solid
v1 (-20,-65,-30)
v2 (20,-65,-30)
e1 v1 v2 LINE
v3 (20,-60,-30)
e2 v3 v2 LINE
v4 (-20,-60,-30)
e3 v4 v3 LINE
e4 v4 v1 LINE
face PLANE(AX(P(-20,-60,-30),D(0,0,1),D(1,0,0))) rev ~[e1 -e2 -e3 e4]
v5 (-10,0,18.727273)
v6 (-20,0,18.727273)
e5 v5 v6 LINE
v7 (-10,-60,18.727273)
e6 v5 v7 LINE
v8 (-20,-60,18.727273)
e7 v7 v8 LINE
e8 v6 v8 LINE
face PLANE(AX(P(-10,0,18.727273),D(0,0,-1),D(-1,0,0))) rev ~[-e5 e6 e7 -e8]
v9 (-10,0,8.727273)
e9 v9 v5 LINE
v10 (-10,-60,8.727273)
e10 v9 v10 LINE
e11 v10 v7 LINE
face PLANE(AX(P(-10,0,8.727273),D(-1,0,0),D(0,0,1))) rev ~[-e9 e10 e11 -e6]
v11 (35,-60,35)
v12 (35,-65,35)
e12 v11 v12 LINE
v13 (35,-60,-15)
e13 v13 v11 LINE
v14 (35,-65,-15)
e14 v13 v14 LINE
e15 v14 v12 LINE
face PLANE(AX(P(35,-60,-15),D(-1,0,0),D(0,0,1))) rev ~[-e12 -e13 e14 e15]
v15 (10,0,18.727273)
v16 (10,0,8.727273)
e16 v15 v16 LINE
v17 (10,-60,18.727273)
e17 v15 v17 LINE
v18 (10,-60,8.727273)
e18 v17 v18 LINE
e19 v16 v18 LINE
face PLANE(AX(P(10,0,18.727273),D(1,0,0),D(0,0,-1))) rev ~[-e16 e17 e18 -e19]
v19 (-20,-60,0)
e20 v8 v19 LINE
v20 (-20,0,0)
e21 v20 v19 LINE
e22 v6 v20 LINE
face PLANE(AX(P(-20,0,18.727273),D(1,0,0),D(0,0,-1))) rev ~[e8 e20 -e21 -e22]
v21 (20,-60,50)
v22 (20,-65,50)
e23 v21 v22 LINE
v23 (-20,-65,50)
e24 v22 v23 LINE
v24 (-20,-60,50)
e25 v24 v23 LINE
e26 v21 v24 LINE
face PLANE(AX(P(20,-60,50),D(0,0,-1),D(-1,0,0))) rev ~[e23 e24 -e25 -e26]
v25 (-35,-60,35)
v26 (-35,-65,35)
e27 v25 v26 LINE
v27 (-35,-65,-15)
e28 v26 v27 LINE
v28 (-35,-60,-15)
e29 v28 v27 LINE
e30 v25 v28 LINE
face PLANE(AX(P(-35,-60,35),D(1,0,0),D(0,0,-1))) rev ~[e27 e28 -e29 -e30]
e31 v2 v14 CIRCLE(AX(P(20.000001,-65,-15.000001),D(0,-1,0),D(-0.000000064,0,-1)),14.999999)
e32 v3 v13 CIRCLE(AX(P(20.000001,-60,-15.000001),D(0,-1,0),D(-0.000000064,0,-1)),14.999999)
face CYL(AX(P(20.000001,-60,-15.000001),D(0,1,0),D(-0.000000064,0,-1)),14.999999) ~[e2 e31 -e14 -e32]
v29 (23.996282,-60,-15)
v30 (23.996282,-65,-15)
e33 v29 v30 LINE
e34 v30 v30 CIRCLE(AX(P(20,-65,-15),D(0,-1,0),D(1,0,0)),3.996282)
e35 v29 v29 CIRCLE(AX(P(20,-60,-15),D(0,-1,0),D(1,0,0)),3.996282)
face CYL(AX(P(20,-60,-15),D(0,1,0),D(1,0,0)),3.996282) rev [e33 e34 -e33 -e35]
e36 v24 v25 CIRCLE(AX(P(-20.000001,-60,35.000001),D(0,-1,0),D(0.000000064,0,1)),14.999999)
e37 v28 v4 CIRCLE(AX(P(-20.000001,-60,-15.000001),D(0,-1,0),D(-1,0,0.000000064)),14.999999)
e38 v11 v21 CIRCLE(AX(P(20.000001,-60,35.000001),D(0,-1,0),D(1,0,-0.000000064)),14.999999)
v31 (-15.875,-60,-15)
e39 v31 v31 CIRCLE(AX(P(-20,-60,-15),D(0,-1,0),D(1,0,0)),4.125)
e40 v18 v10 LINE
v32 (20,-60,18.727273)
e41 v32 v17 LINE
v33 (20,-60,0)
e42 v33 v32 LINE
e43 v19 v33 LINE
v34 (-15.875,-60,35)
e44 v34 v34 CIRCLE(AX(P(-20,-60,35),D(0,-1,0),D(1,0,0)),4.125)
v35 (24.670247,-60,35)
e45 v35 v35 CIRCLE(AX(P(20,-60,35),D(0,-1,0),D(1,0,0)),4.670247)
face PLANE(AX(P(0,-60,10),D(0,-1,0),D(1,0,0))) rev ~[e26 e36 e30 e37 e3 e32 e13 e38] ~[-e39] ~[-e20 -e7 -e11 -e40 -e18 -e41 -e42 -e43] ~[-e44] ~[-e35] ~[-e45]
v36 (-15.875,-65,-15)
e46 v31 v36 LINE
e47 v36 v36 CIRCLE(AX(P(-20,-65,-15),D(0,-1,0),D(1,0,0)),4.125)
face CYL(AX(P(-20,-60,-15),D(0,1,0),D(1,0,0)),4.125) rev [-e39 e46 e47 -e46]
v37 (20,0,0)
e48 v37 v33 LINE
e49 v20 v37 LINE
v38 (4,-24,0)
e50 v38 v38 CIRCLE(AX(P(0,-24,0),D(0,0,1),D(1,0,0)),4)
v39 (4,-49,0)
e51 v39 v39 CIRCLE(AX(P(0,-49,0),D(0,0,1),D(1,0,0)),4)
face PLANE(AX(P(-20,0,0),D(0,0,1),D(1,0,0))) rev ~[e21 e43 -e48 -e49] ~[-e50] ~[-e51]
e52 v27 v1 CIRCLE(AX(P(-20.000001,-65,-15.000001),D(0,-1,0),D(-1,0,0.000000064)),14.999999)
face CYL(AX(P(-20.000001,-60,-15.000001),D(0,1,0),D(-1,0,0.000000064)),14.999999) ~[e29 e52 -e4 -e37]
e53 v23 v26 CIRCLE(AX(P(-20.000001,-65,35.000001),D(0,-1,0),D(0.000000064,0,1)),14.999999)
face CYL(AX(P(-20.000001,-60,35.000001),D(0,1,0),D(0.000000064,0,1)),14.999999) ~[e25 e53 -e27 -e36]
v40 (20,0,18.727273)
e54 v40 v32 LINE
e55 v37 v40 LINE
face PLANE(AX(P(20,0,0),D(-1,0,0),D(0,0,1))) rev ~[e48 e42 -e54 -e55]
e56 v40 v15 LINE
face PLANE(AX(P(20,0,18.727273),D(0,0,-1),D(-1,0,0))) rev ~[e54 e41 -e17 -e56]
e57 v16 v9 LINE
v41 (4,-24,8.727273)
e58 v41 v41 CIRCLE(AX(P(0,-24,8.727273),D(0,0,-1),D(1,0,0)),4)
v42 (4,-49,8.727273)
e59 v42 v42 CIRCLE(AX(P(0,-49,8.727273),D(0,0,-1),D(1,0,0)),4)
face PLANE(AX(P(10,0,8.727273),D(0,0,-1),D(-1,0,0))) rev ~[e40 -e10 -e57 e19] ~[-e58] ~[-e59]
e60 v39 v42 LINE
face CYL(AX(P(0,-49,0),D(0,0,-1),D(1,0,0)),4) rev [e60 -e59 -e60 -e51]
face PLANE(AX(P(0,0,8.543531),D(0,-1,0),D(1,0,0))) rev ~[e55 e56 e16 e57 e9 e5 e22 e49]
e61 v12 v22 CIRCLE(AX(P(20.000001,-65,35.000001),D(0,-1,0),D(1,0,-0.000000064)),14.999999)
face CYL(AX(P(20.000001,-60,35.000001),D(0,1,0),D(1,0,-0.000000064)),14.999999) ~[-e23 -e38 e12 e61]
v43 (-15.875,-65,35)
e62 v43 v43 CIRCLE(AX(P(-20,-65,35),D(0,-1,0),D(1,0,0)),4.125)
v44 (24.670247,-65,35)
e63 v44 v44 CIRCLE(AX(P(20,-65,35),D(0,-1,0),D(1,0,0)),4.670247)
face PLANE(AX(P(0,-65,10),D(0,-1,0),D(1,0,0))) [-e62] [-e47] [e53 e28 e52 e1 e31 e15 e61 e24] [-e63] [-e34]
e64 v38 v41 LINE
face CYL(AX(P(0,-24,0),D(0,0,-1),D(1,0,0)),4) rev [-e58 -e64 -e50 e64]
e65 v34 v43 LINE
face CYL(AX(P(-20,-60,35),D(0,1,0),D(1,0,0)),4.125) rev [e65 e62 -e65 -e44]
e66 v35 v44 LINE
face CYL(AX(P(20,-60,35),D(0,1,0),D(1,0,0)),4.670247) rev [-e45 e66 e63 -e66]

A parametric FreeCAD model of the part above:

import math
import FreeCAD as App
import Part
import Sketcher
from FreeCAD import Vector

doc = App.newDocument("Part")
body = doc.addObject("PartDesign::Body", "Body")

sketch1 = doc.addObject("Sketcher::SketchObject", "Sketch")
body.addObject(sketch1)
sketch1.AttachmentSupport = (doc.XZ_Plane, [""])
sketch1.MapMode = "FlatFace"
sketch1.addGeometry(Part.LineSegment(Vector(-20, 19, 0), Vector(-20, 0, 0)), False)
sketch1.addGeometry(Part.LineSegment(Vector(-20, 0, 0), Vector(20, 0, 0)), False)
sketch1.addGeometry(Part.LineSegment(Vector(20, 0, 0), Vector(20, 19, 0)), False)
sketch1.addGeometry(Part.LineSegment(Vector(20, 19, 0), Vector(10, 19, 0)), False)
sketch1.addGeometry(Part.LineSegment(Vector(10, 19, 0), Vector(10, 9, 0)), False)
sketch1.addGeometry(Part.LineSegment(Vector(10, 9, 0), Vector(-10, 9, 0)), False)
sketch1.addGeometry(Part.LineSegment(Vector(-10, 9, 0), Vector(-10, 19, 0)), False)
sketch1.addGeometry(Part.LineSegment(Vector(-10, 19, 0), Vector(-20, 19, 0)), False)
sketch1.addConstraint(Sketcher.Constraint("Coincident", 0, 2, 1, 1))
sketch1.addConstraint(Sketcher.Constraint("Coincident", 1, 2, 2, 1))
sketch1.addConstraint(Sketcher.Constraint("Coincident", 2, 2, 3, 1))
sketch1.addConstraint(Sketcher.Constraint("Coincident", 3, 2, 4, 1))
sketch1.addConstraint(Sketcher.Constraint("Coincident", 4, 2, 5, 1))
sketch1.addConstraint(Sketcher.Constraint("Coincident", 5, 2, 6, 1))
sketch1.addConstraint(Sketcher.Constraint("Coincident", 6, 2, 7, 1))
sketch1.addConstraint(Sketcher.Constraint("Coincident", 7, 2, 0, 1))
sketch1.addConstraint(Sketcher.Constraint("Vertical", 0))
sketch1.addConstraint(Sketcher.Constraint("Horizontal", 1))
sketch1.addConstraint(Sketcher.Constraint("Vertical", 2))
sketch1.addConstraint(Sketcher.Constraint("Horizontal", 3))
sketch1.addConstraint(Sketcher.Constraint("Vertical", 4))
sketch1.addConstraint(Sketcher.Constraint("Horizontal", 5))
sketch1.addConstraint(Sketcher.Constraint("Vertical", 6))
sketch1.addConstraint(Sketcher.Constraint("Horizontal", 7))
sketch1.addConstraint(Sketcher.Constraint("Symmetric", 0, 2, 1, 2, -1, 1))
sketch1.addConstraint(Sketcher.Constraint("Symmetric", 3, 2, 6, 2, -2))
sketch1.addConstraint(Sketcher.Constraint("Equal", 7, 4))
sketch1.addConstraint(Sketcher.Constraint("DistanceX", 1, 1, 1, 2, 40.0))
sketch1.addConstraint(Sketcher.Constraint("DistanceX", 3, 2, 3, 1, 10.0))
sketch1.addConstraint(Sketcher.Constraint("DistanceY", 0, 2, 0, 1, 18.727273))
pad1 = doc.addObject("PartDesign::Pad", "Pad")
body.addObject(pad1)
pad1.Profile = sketch1
pad1.Length = 60

sketch2 = doc.addObject("Sketcher::SketchObject", "Sketch001")
body.addObject(sketch2)
sketch2.AttachmentSupport = (doc.XZ_Plane, [""])
sketch2.MapMode = "FlatFace"
sketch2.AttachmentOffset = App.Placement(Vector(0, 0, 60), App.Rotation())
sketch2.addGeometry(Part.LineSegment(Vector(20, 50, 0), Vector(-20, 50, 0)), False)
sketch2.addGeometry(Part.ArcOfCircle(Part.Circle(Vector(-20, 35, 0), Vector(0, 0, 1), 15), math.radians(90), math.radians(180)), False)
sketch2.addGeometry(Part.LineSegment(Vector(-35, 35, 0), Vector(-35, -15, 0)), False)
sketch2.addGeometry(Part.ArcOfCircle(Part.Circle(Vector(-20, -15, 0), Vector(0, 0, 1), 15), math.radians(180), math.radians(270)), False)
sketch2.addGeometry(Part.LineSegment(Vector(-20, -30, 0), Vector(20, -30, 0)), False)
sketch2.addGeometry(Part.ArcOfCircle(Part.Circle(Vector(20, -15, 0), Vector(0, 0, 1), 15), math.radians(-90), math.radians(0)), False)
sketch2.addGeometry(Part.LineSegment(Vector(35, -15, 0), Vector(35, 35, 0)), False)
sketch2.addGeometry(Part.ArcOfCircle(Part.Circle(Vector(20, 35, 0), Vector(0, 0, 1), 15), math.radians(0), math.radians(90)), False)
sketch2.addGeometry(Part.Circle(Vector(-20, -15, 0), Vector(0, 0, 1), 4.1), False)
sketch2.addGeometry(Part.Circle(Vector(20, -15, 0), Vector(0, 0, 1), 4), False)
sketch2.addGeometry(Part.Circle(Vector(-20, 35, 0), Vector(0, 0, 1), 4.1), False)
sketch2.addGeometry(Part.Circle(Vector(20, 35, 0), Vector(0, 0, 1), 4.7), False)
sketch2.addConstraint(Sketcher.Constraint("Tangent", 0, 2, 1, 1))
sketch2.addConstraint(Sketcher.Constraint("Tangent", 1, 2, 2, 1))
sketch2.addConstraint(Sketcher.Constraint("Tangent", 2, 2, 3, 1))
sketch2.addConstraint(Sketcher.Constraint("Tangent", 3, 2, 4, 1))
sketch2.addConstraint(Sketcher.Constraint("Tangent", 4, 2, 5, 1))
sketch2.addConstraint(Sketcher.Constraint("Tangent", 5, 2, 6, 1))
sketch2.addConstraint(Sketcher.Constraint("Tangent", 6, 2, 7, 1))
sketch2.addConstraint(Sketcher.Constraint("Tangent", 7, 2, 0, 1))
sketch2.addConstraint(Sketcher.Constraint("Horizontal", 0))
sketch2.addConstraint(Sketcher.Constraint("Vertical", 2))
sketch2.addConstraint(Sketcher.Constraint("Horizontal", 4))
sketch2.addConstraint(Sketcher.Constraint("Vertical", 6))
sketch2.addConstraint(Sketcher.Constraint("Coincident", 8, 3, 3, 3))
sketch2.addConstraint(Sketcher.Constraint("Coincident", 9, 3, 5, 3))
sketch2.addConstraint(Sketcher.Constraint("Coincident", 10, 3, 1, 3))
sketch2.addConstraint(Sketcher.Constraint("Coincident", 11, 3, 7, 3))
sketch2.addConstraint(Sketcher.Constraint("Equal", 1, 3))
sketch2.addConstraint(Sketcher.Constraint("Equal", 3, 5))
sketch2.addConstraint(Sketcher.Constraint("Equal", 5, 7))
sketch2.addConstraint(Sketcher.Constraint("Equal", 8, 10))
sketch2.addConstraint(Sketcher.Constraint("Radius", 1, 14.999999))
sketch2.addConstraint(Sketcher.Constraint("Diameter", 8, 8.25))
sketch2.addConstraint(Sketcher.Constraint("DistanceX", 0, 2, 0, 1, 40.0))
sketch2.addConstraint(Sketcher.Constraint("DistanceY", 2, 2, 2, 1, 50.0))
sketch2.addConstraint(Sketcher.Constraint("DistanceX", 1, 3, -1, 1, 20.000001))
sketch2.addConstraint(Sketcher.Constraint("DistanceY", -1, 1, 1, 3, 35.000001))
sketch2.addConstraint(Sketcher.Constraint("Diameter", 9, 7.992564))
sketch2.addConstraint(Sketcher.Constraint("Diameter", 11, 9.340494))
pad2 = doc.addObject("PartDesign::Pad", "Pad001")
body.addObject(pad2)
pad2.Profile = sketch2
pad2.Length = 5

sketch3 = doc.addObject("Sketcher::SketchObject", "Sketch002")
body.addObject(sketch3)
sketch3.AttachmentSupport = (doc.XY_Plane, [""])
sketch3.MapMode = "FlatFace"
sketch3.addGeometry(Part.Circle(Vector(0, -49, 0), Vector(0, 0, 1), 4), False)
sketch3.addGeometry(Part.Circle(Vector(0, -24, 0), Vector(0, 0, 1), 4), False)
sketch3.addConstraint(Sketcher.Constraint("Equal", 0, 1))
sketch3.addConstraint(Sketcher.Constraint("PointOnObject", 0, 3, -2))
sketch3.addConstraint(Sketcher.Constraint("PointOnObject", 1, 3, -2))
sketch3.addConstraint(Sketcher.Constraint("Diameter", 0, 8.0))
sketch3.addConstraint(Sketcher.Constraint("DistanceY", 0, 3, -1, 1, 49.0))
sketch3.addConstraint(Sketcher.Constraint("DistanceY", 1, 3, -1, 1, 24.0))
pocket1 = doc.addObject("PartDesign::Pocket", "Pocket")
body.addObject(pocket1)
pocket1.Profile = sketch3
pocket1.Type = "ThroughAll"
pocket1.Reversed = True

doc.recompute()
